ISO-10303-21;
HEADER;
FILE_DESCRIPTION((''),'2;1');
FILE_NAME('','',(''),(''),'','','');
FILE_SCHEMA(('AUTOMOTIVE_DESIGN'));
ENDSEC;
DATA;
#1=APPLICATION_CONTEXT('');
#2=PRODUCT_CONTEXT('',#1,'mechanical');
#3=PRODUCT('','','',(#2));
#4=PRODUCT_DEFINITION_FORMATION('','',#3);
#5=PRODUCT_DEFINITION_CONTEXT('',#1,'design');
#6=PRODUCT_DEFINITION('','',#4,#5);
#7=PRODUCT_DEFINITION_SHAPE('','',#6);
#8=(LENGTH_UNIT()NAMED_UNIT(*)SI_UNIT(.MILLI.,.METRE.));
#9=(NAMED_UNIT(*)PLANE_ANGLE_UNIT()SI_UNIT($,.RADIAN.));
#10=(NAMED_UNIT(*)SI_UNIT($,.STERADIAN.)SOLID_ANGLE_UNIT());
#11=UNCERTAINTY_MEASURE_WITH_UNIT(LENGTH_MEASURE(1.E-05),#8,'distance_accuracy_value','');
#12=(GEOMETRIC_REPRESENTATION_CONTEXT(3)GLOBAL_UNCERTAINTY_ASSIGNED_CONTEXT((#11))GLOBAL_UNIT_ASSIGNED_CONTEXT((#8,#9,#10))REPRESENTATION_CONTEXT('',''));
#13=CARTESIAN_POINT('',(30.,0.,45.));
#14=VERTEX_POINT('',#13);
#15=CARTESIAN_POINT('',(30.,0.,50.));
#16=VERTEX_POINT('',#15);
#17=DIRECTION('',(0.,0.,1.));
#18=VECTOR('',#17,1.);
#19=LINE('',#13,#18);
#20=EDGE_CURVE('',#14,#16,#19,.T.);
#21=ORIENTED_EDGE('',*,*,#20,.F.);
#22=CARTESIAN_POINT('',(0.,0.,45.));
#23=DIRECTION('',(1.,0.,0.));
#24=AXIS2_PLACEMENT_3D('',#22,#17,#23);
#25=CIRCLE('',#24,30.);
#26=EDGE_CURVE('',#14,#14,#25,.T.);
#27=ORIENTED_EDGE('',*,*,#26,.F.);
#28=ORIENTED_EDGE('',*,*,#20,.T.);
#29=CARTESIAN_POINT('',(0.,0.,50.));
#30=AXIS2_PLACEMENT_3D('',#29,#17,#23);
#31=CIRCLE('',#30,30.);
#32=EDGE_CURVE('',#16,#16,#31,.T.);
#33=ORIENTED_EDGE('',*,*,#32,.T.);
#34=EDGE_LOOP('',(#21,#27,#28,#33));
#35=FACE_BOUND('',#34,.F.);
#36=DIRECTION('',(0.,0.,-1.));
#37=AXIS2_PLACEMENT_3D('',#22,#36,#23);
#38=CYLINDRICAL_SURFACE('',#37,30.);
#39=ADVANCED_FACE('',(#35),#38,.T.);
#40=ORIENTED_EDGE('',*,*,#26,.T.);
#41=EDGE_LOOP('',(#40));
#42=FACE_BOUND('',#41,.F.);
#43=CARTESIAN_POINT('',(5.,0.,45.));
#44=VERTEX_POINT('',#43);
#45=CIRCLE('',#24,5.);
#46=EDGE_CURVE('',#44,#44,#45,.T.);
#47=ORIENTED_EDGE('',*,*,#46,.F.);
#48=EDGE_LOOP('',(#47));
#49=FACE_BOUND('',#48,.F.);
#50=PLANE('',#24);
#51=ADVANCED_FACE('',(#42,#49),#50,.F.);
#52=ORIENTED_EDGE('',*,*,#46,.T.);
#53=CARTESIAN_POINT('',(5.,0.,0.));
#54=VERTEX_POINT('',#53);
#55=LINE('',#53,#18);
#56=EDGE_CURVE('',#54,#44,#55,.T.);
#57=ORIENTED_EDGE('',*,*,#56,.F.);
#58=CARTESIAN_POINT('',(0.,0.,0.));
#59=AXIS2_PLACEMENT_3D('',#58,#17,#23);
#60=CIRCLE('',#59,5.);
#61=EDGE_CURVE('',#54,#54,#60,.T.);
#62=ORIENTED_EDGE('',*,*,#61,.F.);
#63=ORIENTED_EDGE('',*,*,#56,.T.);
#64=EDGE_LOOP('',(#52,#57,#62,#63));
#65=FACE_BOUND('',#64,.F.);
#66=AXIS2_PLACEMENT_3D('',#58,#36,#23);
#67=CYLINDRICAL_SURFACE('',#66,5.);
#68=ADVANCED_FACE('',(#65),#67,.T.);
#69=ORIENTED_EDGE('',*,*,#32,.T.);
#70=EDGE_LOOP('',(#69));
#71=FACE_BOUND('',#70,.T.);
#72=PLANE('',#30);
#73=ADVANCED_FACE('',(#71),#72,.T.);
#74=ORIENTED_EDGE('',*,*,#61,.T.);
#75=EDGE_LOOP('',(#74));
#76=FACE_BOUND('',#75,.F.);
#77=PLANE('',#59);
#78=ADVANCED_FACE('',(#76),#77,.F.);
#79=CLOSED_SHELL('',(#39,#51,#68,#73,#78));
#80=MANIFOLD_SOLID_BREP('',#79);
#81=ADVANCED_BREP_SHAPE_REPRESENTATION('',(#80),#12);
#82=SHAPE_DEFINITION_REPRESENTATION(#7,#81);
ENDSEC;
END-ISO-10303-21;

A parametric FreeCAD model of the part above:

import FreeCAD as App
import Part
import Sketcher

V = App.Vector
Q = App.Units.Quantity

doc = App.newDocument("Part")
body = doc.addObject("PartDesign::Body", "Body")

# Sketch on XY plane
sketch1 = body.newObject("Sketcher::SketchObject", "Sketch")
sketch1.AttachmentSupport = (doc.getObject("XY_Plane"), [""])
sketch1.MapMode = "FlatFace"
sketch1.addGeometry(Part.Circle(V(0, 0, 0), V(0, 0, 1), 5), False)
sketch1.addConstraint([
    Sketcher.Constraint("Coincident", 0, 3, -1, 1),
    Sketcher.Constraint("Diameter", 0, Q("10 mm")),
])
pad1 = body.newObject("PartDesign::Pad", "Pad")
pad1.Profile = sketch1
pad1.Length = 45

# Sketch on XY plane
sketch2 = body.newObject("Sketcher::SketchObject", "Sketch001")
sketch2.AttachmentSupport = (doc.getObject("XY_Plane"), [""])
sketch2.MapMode = "FlatFace"
sketch2.AttachmentOffset = App.Placement(V(0, 0, 45), App.Rotation())
sketch2.addGeometry(Part.Circle(V(0, 0, 0), V(0, 0, 1), 30), False)
sketch2.addConstraint([
    Sketcher.Constraint("Coincident", 0, 3, -1, 1),
    Sketcher.Constraint("Diameter", 0, Q("60 mm")),
])
pad2 = body.newObject("PartDesign::Pad", "Pad001")
pad2.Profile = sketch2
pad2.Length = 5

doc.recompute()
